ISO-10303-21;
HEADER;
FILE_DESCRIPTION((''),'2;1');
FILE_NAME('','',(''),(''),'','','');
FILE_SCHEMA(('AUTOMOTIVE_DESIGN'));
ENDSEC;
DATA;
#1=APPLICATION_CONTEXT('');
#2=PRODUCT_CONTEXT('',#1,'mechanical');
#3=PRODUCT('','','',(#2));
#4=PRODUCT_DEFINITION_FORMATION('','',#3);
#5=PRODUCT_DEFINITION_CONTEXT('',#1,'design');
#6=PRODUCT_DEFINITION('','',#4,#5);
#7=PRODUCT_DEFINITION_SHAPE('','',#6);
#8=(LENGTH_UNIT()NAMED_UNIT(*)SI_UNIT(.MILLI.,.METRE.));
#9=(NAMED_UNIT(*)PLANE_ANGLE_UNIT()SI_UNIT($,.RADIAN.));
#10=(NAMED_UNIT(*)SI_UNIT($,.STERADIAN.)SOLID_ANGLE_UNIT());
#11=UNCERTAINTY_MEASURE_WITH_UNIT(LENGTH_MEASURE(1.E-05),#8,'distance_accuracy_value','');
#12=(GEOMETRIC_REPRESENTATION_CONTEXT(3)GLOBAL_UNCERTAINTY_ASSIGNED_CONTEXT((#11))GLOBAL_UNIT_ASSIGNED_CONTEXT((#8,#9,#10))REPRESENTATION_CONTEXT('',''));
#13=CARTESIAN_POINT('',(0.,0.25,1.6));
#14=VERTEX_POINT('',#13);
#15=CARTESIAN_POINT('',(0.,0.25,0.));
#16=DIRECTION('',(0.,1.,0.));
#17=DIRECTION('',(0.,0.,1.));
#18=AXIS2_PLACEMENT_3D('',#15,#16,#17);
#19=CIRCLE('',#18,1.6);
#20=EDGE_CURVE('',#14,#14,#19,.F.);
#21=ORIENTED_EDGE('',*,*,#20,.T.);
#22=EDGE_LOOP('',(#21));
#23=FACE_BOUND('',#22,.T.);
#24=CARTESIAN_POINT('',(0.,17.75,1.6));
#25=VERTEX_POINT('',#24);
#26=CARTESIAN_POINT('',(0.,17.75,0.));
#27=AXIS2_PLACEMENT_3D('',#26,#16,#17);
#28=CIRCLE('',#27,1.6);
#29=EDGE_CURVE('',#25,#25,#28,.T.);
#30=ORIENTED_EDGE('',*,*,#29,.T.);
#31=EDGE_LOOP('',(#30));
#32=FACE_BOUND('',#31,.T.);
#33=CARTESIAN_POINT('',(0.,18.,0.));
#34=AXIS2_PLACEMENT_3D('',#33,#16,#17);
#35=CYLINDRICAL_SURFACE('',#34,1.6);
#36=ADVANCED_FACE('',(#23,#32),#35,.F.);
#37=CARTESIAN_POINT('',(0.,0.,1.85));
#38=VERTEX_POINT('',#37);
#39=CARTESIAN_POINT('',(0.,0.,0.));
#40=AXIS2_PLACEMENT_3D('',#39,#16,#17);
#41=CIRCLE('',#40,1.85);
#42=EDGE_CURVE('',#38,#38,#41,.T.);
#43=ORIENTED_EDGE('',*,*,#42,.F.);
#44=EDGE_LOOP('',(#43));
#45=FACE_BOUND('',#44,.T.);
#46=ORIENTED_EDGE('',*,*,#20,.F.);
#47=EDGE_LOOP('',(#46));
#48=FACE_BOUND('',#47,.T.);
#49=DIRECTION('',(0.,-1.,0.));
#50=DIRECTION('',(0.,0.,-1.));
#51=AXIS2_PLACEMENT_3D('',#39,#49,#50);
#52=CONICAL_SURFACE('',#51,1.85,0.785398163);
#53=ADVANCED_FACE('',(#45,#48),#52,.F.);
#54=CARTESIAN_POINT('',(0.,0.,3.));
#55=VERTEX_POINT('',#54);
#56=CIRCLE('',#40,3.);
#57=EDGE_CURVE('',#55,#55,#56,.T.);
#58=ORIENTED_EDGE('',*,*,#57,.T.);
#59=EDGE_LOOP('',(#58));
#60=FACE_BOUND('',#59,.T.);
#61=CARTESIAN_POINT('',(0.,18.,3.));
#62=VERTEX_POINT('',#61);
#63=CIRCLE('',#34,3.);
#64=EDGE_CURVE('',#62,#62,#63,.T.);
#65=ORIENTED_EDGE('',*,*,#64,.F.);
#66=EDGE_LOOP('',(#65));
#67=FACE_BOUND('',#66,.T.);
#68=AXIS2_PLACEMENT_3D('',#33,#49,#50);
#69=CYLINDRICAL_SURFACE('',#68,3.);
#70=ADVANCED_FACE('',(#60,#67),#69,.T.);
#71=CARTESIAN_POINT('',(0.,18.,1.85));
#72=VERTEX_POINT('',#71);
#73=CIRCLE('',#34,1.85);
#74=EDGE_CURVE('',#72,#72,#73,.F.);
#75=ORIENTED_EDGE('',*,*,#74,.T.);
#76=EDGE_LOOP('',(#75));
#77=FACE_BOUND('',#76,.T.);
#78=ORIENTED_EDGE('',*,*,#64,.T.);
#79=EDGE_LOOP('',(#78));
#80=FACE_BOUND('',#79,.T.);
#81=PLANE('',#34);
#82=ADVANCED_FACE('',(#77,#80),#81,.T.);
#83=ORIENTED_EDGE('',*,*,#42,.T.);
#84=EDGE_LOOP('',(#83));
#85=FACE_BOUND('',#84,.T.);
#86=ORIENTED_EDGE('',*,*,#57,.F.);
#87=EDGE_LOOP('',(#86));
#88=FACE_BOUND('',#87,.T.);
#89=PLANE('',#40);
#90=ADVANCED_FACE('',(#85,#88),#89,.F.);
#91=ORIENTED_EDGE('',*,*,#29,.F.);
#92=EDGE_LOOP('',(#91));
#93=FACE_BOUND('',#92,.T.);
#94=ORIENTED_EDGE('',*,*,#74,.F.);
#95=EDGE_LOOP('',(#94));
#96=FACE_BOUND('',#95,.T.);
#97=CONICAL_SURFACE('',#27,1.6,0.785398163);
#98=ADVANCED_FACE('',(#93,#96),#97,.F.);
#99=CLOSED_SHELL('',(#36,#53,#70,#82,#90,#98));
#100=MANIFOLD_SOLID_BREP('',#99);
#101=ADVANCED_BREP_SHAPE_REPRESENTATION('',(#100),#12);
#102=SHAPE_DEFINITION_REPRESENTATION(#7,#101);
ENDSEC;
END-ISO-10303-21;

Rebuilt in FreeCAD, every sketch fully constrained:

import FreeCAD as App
import Part
import Sketcher
from FreeCAD import Vector
Q = App.Units.Quantity


def edges_at(feature, points):
    """Names of the edges that pass closest to the given points."""
    edges = feature.Shape.Edges
    near = lambda p: min(range(len(edges)), key=lambda i: edges[i].distToShape(Part.Vertex(*p))[0])
    return sorted({f"Edge{near(p) + 1}" for p in points})

doc = App.newDocument("Part")
body = doc.addObject("PartDesign::Body", "Body")

# Sketch on XZ plane
sketch1 = body.newObject("Sketcher::SketchObject", "Sketch")
sketch1.AttachmentSupport = (doc.getObject("XZ_Plane"), [""])
sketch1.MapMode = "FlatFace"
sketch1.addGeometry(Part.Circle(Vector(0, 0, 0), Vector(0, 0, 1), 3), False)
sketch1.addConstraint(Sketcher.Constraint("Coincident", 0, 3, -1, 1))
sketch1.addConstraint(Sketcher.Constraint("Diameter", 0, Q("6 mm")))
pad1 = body.newObject("PartDesign::Pad", "Pad")
pad1.Profile = sketch1
pad1.Length = 18
pad1.Reversed = True

# Sketch on XZ plane
sketch2 = body.newObject("Sketcher::SketchObject", "Sketch001")
sketch2.AttachmentSupport = (doc.getObject("XZ_Plane"), [""])
sketch2.MapMode = "FlatFace"
sketch2.AttachmentOffset = App.Placement(Vector(0, 0, -18), App.Rotation())
sketch2.addGeometry(Part.Circle(Vector(0, 0, 0), Vector(0, 0, 1), 1.6), False)
sketch2.addConstraint(Sketcher.Constraint("Coincident", 0, 3, -1, 1))
sketch2.addConstraint(Sketcher.Constraint("Diameter", 0, Q("3.2 mm")))
doc.recompute()
hole = body.newObject("PartDesign::Hole", "Hole")
hole.Profile = sketch2
hole.ThreadType = "None"
hole.Diameter = 3.2
hole.DepthType = "ThroughAll"
hole.Reversed = True
doc.recompute()

chamfer = body.newObject("PartDesign::Chamfer", "Chamfer")
chamfer.Base = (hole, edges_at(hole, [(1.6, 18, 0), (1.6, 0, 0)]))
chamfer.Size = 0.25

doc.recompute()
